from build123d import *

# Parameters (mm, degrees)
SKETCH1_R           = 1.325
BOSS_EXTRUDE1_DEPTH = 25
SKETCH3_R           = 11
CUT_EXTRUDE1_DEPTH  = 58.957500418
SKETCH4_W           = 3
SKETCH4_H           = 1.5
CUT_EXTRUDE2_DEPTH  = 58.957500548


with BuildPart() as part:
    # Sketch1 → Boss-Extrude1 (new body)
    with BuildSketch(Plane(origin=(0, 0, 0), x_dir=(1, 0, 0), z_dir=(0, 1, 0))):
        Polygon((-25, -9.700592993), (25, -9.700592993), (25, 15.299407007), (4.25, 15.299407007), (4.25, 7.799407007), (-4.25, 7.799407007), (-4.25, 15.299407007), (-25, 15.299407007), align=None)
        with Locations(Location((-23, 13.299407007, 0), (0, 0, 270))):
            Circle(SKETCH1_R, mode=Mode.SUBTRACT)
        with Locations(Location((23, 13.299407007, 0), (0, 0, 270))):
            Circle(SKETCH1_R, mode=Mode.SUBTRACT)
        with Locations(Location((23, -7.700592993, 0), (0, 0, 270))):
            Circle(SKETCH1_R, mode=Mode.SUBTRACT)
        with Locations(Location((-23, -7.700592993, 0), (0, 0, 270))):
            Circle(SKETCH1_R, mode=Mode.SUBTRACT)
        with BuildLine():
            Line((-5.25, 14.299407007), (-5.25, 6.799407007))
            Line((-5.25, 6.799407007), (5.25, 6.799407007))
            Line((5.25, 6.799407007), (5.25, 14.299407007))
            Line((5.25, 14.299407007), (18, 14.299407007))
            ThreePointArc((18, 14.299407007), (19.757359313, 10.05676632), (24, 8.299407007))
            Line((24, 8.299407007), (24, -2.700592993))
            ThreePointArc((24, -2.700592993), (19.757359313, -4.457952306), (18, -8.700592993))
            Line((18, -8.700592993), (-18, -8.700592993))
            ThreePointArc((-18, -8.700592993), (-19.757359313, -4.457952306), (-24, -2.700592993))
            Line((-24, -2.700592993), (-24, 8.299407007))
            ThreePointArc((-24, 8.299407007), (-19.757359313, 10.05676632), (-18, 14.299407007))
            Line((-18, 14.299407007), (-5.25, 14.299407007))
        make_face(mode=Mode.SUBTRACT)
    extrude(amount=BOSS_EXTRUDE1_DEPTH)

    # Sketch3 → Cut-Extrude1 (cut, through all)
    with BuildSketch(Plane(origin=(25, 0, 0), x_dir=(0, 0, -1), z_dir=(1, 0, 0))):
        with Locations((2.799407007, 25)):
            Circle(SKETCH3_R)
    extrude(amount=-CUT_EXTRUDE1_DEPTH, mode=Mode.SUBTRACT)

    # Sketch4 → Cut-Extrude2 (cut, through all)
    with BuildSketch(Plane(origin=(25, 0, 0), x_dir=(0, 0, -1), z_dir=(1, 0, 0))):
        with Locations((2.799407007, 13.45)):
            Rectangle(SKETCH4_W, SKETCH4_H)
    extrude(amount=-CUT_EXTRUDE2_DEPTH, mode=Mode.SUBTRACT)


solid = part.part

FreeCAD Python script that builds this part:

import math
import FreeCAD as App
import Part
import Sketcher


def add_polygon(sketch, points):
    """Adds a closed chain of lines whose ends are joined by coincident constraints."""
    first, n = sketch.GeometryCount, len(points)
    for a, b in zip(points, points[1:] + points[:1]):
        sketch.addGeometry(Part.LineSegment(App.Vector(*a, 0), App.Vector(*b, 0)), False)
    for i in range(n):
        sketch.addConstraint(Sketcher.Constraint("Coincident", first + i, 2, first + (i + 1) % n, 1))

doc = App.newDocument("Part")
body = doc.addObject("PartDesign::Body", "Body")

sketch1 = body.newObject("Sketcher::SketchObject", "Sketch")
sketch1.AttachmentSupport = (doc.getObject("XZ_Plane"), [""])
sketch1.MapMode = "FlatFace"
add_polygon(sketch1, [(-25, 9.7), (25, 9.7), (25, -15.3), (4.2, -15.3), (4.2, -7.8), (-4.2, -7.8), (-4.2, -15.3), (-25, -15.3)])
sketch1.addGeometry(Part.Circle(App.Vector(-23, 7.7, 0), App.Vector(0, 0, 1), 1.3), False)
sketch1.addGeometry(Part.Circle(App.Vector(23, 7.7, 0), App.Vector(0, 0, 1), 1.3), False)
sketch1.addGeometry(Part.LineSegment(App.Vector(-18, -14.3, 0), App.Vector(-5.2, -14.3, 0)), False)
sketch1.addGeometry(Part.LineSegment(App.Vector(-5.2, -14.3, 0), App.Vector(-5.2, -6.8, 0)), False)
sketch1.addGeometry(Part.LineSegment(App.Vector(-5.2, -6.8, 0), App.Vector(5.2, -6.8, 0)), False)
sketch1.addGeometry(Part.LineSegment(App.Vector(5.2, -6.8, 0), App.Vector(5.2, -14.3, 0)), False)
sketch1.addGeometry(Part.LineSegment(App.Vector(5.2, -14.3, 0), App.Vector(18, -14.3, 0)), False)
sketch1.addGeometry(Part.ArcOfCircle(Part.Circle(App.Vector(24, -14.3, 0), App.Vector(0, 0, 1), 6), math.radians(90), math.radians(180)), False)
sketch1.addGeometry(Part.LineSegment(App.Vector(24, -8.3, 0), App.Vector(24, 2.7, 0)), False)
sketch1.addGeometry(Part.ArcOfCircle(Part.Circle(App.Vector(24, 8.7, 0), App.Vector(0, 0, 1), 6), math.radians(180), math.radians(270)), False)
sketch1.addGeometry(Part.LineSegment(App.Vector(18, 8.7, 0), App.Vector(-18, 8.7, 0)), False)
sketch1.addGeometry(Part.ArcOfCircle(Part.Circle(App.Vector(-24, 8.7, 0), App.Vector(0, 0, 1), 6), math.radians(-90), math.radians(0)), False)
sketch1.addGeometry(Part.LineSegment(App.Vector(-24, 2.7, 0), App.Vector(-24, -8.3, 0)), False)
sketch1.addGeometry(Part.ArcOfCircle(Part.Circle(App.Vector(-24, -14.3, 0), App.Vector(0, 0, 1), 6), math.radians(0), math.radians(90)), False)
sketch1.addGeometry(Part.Circle(App.Vector(-23, -13.3, 0), App.Vector(0, 0, 1), 1.3), False)
sketch1.addGeometry(Part.Circle(App.Vector(23, -13.3, 0), App.Vector(0, 0, 1), 1.3), False)
sketch1.addConstraint([
    Sketcher.Constraint("Coincident", 10, 2, 11, 1),
    Sketcher.Constraint("Coincident", 11, 2, 12, 1),
    Sketcher.Constraint("Coincident", 12, 2, 13, 1),
    Sketcher.Constraint("Coincident", 13, 2, 14, 1),
    Sketcher.Constraint("Coincident", 14, 2, 15, 2),
    Sketcher.Constraint("Coincident", 15, 1, 16, 1),
    Sketcher.Constraint("Coincident", 16, 2, 17, 2),
    Sketcher.Constraint("Coincident", 17, 1, 18, 1),
    Sketcher.Constraint("Coincident", 18, 2, 19, 2),
    Sketcher.Constraint("Coincident", 19, 1, 20, 1),
    Sketcher.Constraint("Coincident", 20, 2, 21, 2),
    Sketcher.Constraint("Coincident", 21, 1, 10, 1),
    Sketcher.Constraint("Horizontal", 0),
    Sketcher.Constraint("Vertical", 1),
    Sketcher.Constraint("Horizontal", 2),
    Sketcher.Constraint("Vertical", 3),
    Sketcher.Constraint("Horizontal", 4),
    Sketcher.Constraint("Vertical", 5),
    Sketcher.Constraint("Horizontal", 6),
    Sketcher.Constraint("Vertical", 7),
    Sketcher.Constraint("Horizontal", 10),
    Sketcher.Constraint("Vertical", 11),
    Sketcher.Constraint("Horizontal", 12),
    Sketcher.Constraint("Vertical", 13),
    Sketcher.Constraint("Horizontal", 14),
    Sketcher.Constraint("Vertical", 16),
    Sketcher.Constraint("Horizontal", 18),
    Sketcher.Constraint("Vertical", 20),
    Sketcher.Constraint("Equal", 8, 9),
    Sketcher.Constraint("Equal", 15, 17),
    Sketcher.Constraint("Equal", 17, 19),
    Sketcher.Constraint("Equal", 19, 21),
    Sketcher.Constraint("Equal", 9, 22),
    Sketcher.Constraint("Equal", 22, 23),
    Sketcher.Constraint("Symmetric", 8, 3, 9, 3, -2),
    Sketcher.Constraint("Symmetric", 17, 3, 19, 3, -2),
    Sketcher.Constraint("Symmetric", 15, 3, 21, 3, -2),
    Sketcher.Constraint("Symmetric", 22, 3, 23, 3, -2),
    Sketcher.Constraint("Symmetric", 2, 2, 5, 2, -2),
    Sketcher.Constraint("Symmetric", 10, 2, 13, 2, -2),
    Sketcher.Constraint("Horizontal", 21, 3, 10, 2),
    Sketcher.Constraint("Horizontal", 19, 3, 17, 1),
    Sketcher.Constraint("Vertical", 15, 3, 17, 3),
    Sketcher.Constraint("Vertical", 8, 3, 22, 3),
    Sketcher.Constraint("Vertical", 17, 3, 15, 1),
    Sketcher.Constraint("Vertical", 21, 3, 19, 1),
    Sketcher.Constraint("Equal", 2, 6),
    Sketcher.Constraint("Equal", 5, 11),
    Sketcher.Constraint("Radius", 15, 6.0),
    Sketcher.Constraint("Diameter", 8, 2.65),
    Sketcher.Constraint("DistanceX", 0, 1, 0, 2, 50.0),
    Sketcher.Constraint("DistanceX", 18, 2, 18, 1, 36.0),
    Sketcher.Constraint("DistanceY", 1, 2, 1, 1, 25.0),
    Sketcher.Constraint("DistanceY", 16, 1, 16, 2, 11.0),
    Sketcher.Constraint("DistanceX", 4, 2, 4, 1, 8.5),
    Sketcher.Constraint("DistanceX", 12, 1, 12, 2, 10.5),
    Sketcher.Constraint("DistanceY", 3, 1, 3, 2, 7.5),
    Sketcher.Constraint("DistanceX", 8, 3, -1, 1, 23.0),
    Sketcher.Constraint("DistanceY", 15, 3, 9, 3, 22.0),
    Sketcher.Constraint("DistanceY", 21, 3, 22, 3, 1.0),
    Sketcher.Constraint("DistanceY", 17, 3, 0, 2, 1.0),
    Sketcher.Constraint("DistanceY", -1, 1, 8, 3, 7.700593),
])
pad1 = body.newObject("PartDesign::Pad", "Pad")
pad1.Profile = sketch1
pad1.Length = 25
pad1.Reversed = True

sketch2 = body.newObject("Sketcher::SketchObject", "Sketch001")
sketch2.AttachmentSupport = (doc.getObject("YZ_Plane"), [""])
sketch2.MapMode = "FlatFace"
sketch2.AttachmentOffset = App.Placement(App.Vector(0, 0, 25), App.Rotation())
sketch2.addGeometry(Part.Circle(App.Vector(25, -3, 0), App.Vector(0, 0, 1), 11), False)
sketch2.addConstraint([
    Sketcher.Constraint("Diameter", 0, 22.0),
    Sketcher.Constraint("DistanceX", -1, 1, 0, 3, 25.0),
    Sketcher.Constraint("DistanceY", 0, 3, -1, 1, 2.799407),
])
pocket1 = body.newObject("PartDesign::Pocket", "Pocket")
pocket1.Profile = sketch2
pocket1.Type = "ThroughAll"

sketch3 = body.newObject("Sketcher::SketchObject", "Sketch002")
sketch3.AttachmentSupport = (doc.getObject("YZ_Plane"), [""])
sketch3.MapMode = "FlatFace"
sketch3.AttachmentOffset = App.Placement(App.Vector(0, 0, 25), App.Rotation())
add_polygon(sketch3, [(14.2, -1.3), (12.7, -1.3), (12.7, -4.3), (14.2, -4.3)])
sketch3.addConstraint([
    Sketcher.Constraint("Horizontal", 0),
    Sketcher.Constraint("Vertical", 1),
    Sketcher.Constraint("Horizontal", 2),
    Sketcher.Constraint("Vertical", 3),
    Sketcher.Constraint("DistanceY", 1, 2, 1, 1, 3.0),
    Sketcher.Constraint("DistanceX", 0, 2, 0, 1, 1.5),
    Sketcher.Constraint("DistanceX", -1, 1, 0, 2, 12.7),
    Sketcher.Constraint("DistanceY", 0, 2, -1, 1, 1.299407),
])
pocket2 = body.newObject("PartDesign::Pocket", "Pocket001")
pocket2.Profile = sketch3
pocket2.Type = "ThroughAll"

doc.recompute()
